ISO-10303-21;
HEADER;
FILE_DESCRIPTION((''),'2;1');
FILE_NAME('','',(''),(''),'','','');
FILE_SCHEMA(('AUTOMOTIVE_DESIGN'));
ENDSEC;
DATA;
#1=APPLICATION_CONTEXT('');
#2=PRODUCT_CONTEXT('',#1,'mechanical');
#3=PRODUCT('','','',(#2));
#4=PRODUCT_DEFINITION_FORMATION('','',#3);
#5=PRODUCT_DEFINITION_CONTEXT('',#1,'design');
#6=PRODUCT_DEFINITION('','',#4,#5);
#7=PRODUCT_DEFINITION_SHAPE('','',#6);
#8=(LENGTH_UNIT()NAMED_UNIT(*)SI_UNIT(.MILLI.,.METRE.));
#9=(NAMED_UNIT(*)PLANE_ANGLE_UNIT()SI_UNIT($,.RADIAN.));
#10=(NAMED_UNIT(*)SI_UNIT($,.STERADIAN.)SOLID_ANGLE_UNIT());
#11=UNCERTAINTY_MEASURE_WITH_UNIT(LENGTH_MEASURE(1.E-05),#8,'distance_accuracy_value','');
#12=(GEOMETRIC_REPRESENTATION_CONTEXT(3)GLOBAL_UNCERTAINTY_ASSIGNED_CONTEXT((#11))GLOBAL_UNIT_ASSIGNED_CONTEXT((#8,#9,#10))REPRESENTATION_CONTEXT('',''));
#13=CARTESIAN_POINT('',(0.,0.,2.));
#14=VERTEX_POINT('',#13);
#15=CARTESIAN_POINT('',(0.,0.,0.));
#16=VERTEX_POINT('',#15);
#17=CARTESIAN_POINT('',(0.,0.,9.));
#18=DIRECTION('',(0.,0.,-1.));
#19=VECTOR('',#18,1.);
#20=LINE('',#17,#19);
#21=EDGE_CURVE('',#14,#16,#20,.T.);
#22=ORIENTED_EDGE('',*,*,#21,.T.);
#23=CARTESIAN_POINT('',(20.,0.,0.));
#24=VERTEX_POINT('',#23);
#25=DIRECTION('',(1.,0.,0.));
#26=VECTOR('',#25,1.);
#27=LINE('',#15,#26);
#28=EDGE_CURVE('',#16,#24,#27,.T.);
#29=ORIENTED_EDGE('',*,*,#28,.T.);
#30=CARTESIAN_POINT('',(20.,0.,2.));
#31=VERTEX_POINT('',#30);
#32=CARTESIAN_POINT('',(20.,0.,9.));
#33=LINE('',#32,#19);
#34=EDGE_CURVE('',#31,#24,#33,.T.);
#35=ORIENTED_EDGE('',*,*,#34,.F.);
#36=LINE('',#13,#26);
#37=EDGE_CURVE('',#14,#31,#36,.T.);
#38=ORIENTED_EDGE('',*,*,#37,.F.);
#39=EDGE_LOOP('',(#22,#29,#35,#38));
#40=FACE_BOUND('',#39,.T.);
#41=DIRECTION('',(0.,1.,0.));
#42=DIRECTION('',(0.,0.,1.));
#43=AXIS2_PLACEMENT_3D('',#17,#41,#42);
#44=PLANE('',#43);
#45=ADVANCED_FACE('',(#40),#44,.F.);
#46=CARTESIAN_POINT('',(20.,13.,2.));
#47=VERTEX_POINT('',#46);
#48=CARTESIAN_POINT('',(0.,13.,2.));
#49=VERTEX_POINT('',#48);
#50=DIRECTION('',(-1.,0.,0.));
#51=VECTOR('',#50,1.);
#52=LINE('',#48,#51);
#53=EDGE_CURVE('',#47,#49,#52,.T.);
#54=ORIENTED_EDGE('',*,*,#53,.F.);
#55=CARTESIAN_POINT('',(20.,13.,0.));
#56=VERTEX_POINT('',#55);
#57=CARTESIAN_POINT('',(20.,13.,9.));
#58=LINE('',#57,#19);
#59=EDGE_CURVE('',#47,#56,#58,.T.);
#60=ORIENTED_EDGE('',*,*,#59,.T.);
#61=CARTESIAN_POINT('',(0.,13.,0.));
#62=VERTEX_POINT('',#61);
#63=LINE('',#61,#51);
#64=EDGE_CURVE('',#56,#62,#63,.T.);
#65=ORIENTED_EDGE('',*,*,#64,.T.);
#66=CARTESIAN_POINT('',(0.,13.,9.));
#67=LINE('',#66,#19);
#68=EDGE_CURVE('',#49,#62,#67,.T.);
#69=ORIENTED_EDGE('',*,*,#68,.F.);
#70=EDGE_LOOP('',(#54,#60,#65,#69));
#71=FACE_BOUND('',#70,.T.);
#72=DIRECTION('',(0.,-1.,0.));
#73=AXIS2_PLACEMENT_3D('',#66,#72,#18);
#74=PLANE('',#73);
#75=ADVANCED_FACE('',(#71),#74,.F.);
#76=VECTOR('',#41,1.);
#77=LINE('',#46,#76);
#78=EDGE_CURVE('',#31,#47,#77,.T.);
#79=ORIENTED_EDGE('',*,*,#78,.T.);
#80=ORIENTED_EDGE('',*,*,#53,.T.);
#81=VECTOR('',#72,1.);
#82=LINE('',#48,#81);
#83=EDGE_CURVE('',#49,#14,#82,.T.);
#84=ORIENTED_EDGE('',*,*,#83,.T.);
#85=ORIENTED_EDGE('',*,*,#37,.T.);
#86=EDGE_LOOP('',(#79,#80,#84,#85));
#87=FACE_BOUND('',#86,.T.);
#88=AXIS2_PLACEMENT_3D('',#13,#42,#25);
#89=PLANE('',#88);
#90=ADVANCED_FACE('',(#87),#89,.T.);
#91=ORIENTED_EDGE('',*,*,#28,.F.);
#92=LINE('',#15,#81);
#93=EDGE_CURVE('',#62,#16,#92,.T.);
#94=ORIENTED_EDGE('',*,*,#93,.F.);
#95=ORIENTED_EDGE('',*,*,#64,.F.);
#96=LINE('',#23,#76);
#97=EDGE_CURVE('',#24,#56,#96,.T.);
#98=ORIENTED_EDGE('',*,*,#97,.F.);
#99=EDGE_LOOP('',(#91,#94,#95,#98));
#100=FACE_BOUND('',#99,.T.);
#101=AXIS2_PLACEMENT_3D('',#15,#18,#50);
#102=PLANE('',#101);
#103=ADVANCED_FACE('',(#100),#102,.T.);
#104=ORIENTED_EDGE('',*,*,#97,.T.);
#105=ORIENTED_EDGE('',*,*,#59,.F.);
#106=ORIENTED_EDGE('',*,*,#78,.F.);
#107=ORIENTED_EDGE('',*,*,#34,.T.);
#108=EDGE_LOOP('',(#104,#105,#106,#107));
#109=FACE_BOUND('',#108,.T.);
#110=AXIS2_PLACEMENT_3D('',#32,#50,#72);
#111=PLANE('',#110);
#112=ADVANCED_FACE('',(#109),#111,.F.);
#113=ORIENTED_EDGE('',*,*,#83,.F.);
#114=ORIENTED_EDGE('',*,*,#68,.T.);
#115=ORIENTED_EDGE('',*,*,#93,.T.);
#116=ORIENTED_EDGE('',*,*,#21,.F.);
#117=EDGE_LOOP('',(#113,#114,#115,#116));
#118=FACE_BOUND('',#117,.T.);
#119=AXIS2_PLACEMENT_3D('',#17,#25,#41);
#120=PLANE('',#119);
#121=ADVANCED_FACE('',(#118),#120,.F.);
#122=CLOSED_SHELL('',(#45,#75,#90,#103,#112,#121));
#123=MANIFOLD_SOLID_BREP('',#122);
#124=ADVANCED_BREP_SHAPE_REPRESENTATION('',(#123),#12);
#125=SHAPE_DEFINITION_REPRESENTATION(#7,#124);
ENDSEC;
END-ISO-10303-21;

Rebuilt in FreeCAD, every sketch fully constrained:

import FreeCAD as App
import Part
import Sketcher

V = App.Vector

doc = App.newDocument("Part")
body = doc.addObject("PartDesign::Body", "Body")

sketch1 = body.newObject("Sketcher::SketchObject", "Sketch")
sketch1.AttachmentSupport = (doc.getObject("XY_Plane"), [""])
sketch1.MapMode = "FlatFace"
sketch1.addGeometry([
    Part.LineSegment(V(0, 13, 0), V(0, 0, 0)),
    Part.LineSegment(V(0, 0, 0), V(20, 0, 0)),
    Part.LineSegment(V(20, 0, 0), V(20, 13, 0)),
    Part.LineSegment(V(20, 13, 0), V(0, 13, 0)),
], False)
sketch1.addConstraint([
    Sketcher.Constraint("Coincident", 0, 2, 1, 1),
    Sketcher.Constraint("Coincident", 1, 2, 2, 1),
    Sketcher.Constraint("Coincident", 2, 2, 3, 1),
    Sketcher.Constraint("Coincident", 3, 2, 0, 1),
    Sketcher.Constraint("Vertical", 0),
    Sketcher.Constraint("Horizontal", 1),
    Sketcher.Constraint("Vertical", 2),
    Sketcher.Constraint("Horizontal", 3),
    Sketcher.Constraint("Coincident", 0, 2, -1, 1),
    Sketcher.Constraint("DistanceX", 1, 1, 1, 2, 20.0),
    Sketcher.Constraint("DistanceY", 0, 2, 0, 1, 13.0),
])
pad1 = body.newObject("PartDesign::Pad", "Pad")
pad1.Profile = sketch1
pad1.Length = 9

sketch2 = body.newObject("Sketcher::SketchObject", "Sketch001")
sketch2.AttachmentSupport = (doc.getObject("XY_Plane"), [""])
sketch2.MapMode = "FlatFace"
sketch2.AttachmentOffset = App.Placement(V(0, 0, 9), App.Rotation())
sketch2.addGeometry([
    Part.LineSegment(V(2, 11, 0), V(2, 2, 0)),
    Part.LineSegment(V(2, 2, 0), V(18, 2, 0)),
    Part.LineSegment(V(18, 2, 0), V(18, 11, 0)),
    Part.LineSegment(V(18, 11, 0), V(2, 11, 0)),
], False)
sketch2.addConstraint([
    Sketcher.Constraint("Coincident", 0, 2, 1, 1),
    Sketcher.Constraint("Coincident", 1, 2, 2, 1),
    Sketcher.Constraint("Coincident", 2, 2, 3, 1),
    Sketcher.Constraint("Coincident", 3, 2, 0, 1),
    Sketcher.Constraint("Vertical", 0),
    Sketcher.Constraint("Horizontal", 1),
    Sketcher.Constraint("Vertical", 2),
    Sketcher.Constraint("Horizontal", 3),
    Sketcher.Constraint("DistanceX", 1, 1, 1, 2, 16.0),
    Sketcher.Constraint("DistanceY", 0, 2, 0, 1, 9.0),
    Sketcher.Constraint("DistanceX", -1, 1, 0, 2, 2.0),
    Sketcher.Constraint("DistanceY", -1, 1, 0, 2, 2.0),
])
pocket1 = body.newObject("PartDesign::Pocket", "Pocket")
pocket1.Profile = sketch2
pocket1.Length = 7

sketch3 = body.newObject("Sketcher::SketchObject", "Sketch002")
sketch3.AttachmentSupport = (doc.getObject("XZ_Plane"), [""])
sketch3.MapMode = "FlatFace"
sketch3.addGeometry([
    Part.Circle(V(3.5, 3.5, 0), V(0, 0, 1), 1.5),
    Part.Circle(V(10, 3.5, 0), V(0, 0, 1), 1.5),
    Part.Circle(V(16.5, 3.5, 0), V(0, 0, 1), 1.5),
], False)
sketch3.addConstraint([
    Sketcher.Constraint("Equal", 0, 1),
    Sketcher.Constraint("Equal", 1, 2),
    Sketcher.Constraint("Horizontal", 0, 3, 1, 3),
    Sketcher.Constraint("Horizontal", 1, 3, 2, 3),
    Sketcher.Constraint("Diameter", 0, 3.0),
    Sketcher.Constraint("DistanceX", -1, 1, 1, 3, 10.0),
    Sketcher.Constraint("DistanceX", 0, 3, 2, 3, 13.0),
    Sketcher.Constraint("DistanceX", -1, 1, 0, 3, 3.5),
    Sketcher.Constraint("DistanceY", -1, 1, 0, 3, 3.5),
])
pocket2 = body.newObject("PartDesign::Pocket", "Pocket001")
pocket2.Profile = sketch3
pocket2.Length = 7

sketch4 = body.newObject("Sketcher::SketchObject", "Sketch003")
sketch4.AttachmentSupport = (doc.getObject("XY_Plane"), [""])
sketch4.MapMode = "FlatFace"
sketch4.AttachmentOffset = App.Placement(V(0, 0, 9), App.Rotation())
sketch4.addGeometry([
    Part.LineSegment(V(0, 13, 0), V(0, 0, 0)),
    Part.LineSegment(V(0, 0, 0), V(20, 0, 0)),
    Part.LineSegment(V(20, 0, 0), V(20, 13, 0)),
    Part.LineSegment(V(20, 13, 0), V(0, 13, 0)),
], False)
sketch4.addConstraint([
    Sketcher.Constraint("Coincident", 0, 2, 1, 1),
    Sketcher.Constraint("Coincident", 1, 2, 2, 1),
    Sketcher.Constraint("Coincident", 2, 2, 3, 1),
    Sketcher.Constraint("Coincident", 3, 2, 0, 1),
    Sketcher.Constraint("Vertical", 0),
    Sketcher.Constraint("Horizontal", 1),
    Sketcher.Constraint("Vertical", 2),
    Sketcher.Constraint("Horizontal", 3),
    Sketcher.Constraint("Coincident", 0, 2, -1, 1),
    Sketcher.Constraint("DistanceX", 1, 1, 1, 2, 20.0),
    Sketcher.Constraint("DistanceY", 0, 2, 0, 1, 13.0),
])
pocket3 = body.newObject("PartDesign::Pocket", "Pocket002")
pocket3.Profile = sketch4
pocket3.Length = 7

doc.recompute()
